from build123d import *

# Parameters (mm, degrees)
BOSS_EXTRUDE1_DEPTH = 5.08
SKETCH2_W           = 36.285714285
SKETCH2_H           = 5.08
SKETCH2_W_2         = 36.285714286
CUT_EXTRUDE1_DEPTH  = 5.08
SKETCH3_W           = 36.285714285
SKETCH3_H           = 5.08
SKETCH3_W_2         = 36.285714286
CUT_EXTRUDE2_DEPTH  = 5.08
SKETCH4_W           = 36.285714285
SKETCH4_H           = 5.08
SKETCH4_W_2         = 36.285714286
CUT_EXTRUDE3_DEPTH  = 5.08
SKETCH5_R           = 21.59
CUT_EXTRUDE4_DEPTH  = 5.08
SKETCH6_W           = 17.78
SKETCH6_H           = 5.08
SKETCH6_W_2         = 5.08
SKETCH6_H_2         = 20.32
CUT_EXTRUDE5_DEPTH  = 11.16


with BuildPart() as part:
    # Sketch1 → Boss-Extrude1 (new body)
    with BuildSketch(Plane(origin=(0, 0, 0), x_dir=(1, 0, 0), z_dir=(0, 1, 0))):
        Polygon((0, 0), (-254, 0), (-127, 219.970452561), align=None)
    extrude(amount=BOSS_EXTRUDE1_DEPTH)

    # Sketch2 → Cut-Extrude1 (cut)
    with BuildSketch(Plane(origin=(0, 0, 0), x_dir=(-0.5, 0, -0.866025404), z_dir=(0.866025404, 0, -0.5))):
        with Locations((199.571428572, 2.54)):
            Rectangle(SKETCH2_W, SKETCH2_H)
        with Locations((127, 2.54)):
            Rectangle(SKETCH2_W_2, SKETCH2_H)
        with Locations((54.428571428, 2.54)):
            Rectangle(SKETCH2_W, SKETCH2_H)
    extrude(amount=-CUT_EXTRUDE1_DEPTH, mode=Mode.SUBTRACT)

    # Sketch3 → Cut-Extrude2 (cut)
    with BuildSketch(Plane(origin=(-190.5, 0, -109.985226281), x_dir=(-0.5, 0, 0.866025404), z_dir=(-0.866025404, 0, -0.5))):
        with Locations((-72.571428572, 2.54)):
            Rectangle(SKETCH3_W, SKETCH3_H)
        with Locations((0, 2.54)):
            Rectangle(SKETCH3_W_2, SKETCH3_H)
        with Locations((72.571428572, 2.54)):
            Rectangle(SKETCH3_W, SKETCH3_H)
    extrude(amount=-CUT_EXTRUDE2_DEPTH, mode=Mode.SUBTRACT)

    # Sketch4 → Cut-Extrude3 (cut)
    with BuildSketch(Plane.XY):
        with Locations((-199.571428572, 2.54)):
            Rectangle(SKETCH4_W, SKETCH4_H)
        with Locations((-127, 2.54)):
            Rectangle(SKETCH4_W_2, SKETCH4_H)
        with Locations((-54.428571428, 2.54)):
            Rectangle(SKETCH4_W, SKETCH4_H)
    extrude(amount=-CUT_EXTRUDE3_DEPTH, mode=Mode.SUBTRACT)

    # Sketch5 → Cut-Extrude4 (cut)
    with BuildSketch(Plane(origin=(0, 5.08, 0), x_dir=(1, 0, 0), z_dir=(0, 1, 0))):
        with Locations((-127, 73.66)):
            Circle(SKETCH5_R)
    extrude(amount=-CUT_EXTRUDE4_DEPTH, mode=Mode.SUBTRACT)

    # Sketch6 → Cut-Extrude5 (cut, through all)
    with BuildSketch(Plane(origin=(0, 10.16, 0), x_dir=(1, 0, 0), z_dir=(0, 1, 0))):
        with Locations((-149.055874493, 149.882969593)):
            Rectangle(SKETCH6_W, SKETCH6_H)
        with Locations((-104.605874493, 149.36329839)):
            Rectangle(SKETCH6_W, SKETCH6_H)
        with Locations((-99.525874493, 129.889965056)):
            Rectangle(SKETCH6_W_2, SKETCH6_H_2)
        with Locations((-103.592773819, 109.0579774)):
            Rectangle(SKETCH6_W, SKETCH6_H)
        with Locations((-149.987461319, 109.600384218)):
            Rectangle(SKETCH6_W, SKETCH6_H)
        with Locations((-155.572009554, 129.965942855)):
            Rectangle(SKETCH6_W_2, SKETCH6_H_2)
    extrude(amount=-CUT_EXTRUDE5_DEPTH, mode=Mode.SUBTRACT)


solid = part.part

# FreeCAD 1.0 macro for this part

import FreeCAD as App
import Part
import Sketcher

V = App.Vector
Q = App.Units.Quantity


def add_polygon(sketch, points):
    """Adds a closed chain of lines whose ends are joined by coincident constraints."""
    first, n = sketch.GeometryCount, len(points)
    for a, b in zip(points, points[1:] + points[:1]):
        sketch.addGeometry(Part.LineSegment(App.Vector(*a, 0), App.Vector(*b, 0)), False)
    for i in range(n):
        sketch.addConstraint(Sketcher.Constraint("Coincident", first + i, 2, first + (i + 1) % n, 1))

doc = App.newDocument("Part")
body = doc.addObject("PartDesign::Body", "Body")

sketch1 = body.newObject("Sketcher::SketchObject", "Sketch")
sketch1.AttachmentSupport = (doc.getObject("XZ_Plane"), [""])
sketch1.MapMode = "FlatFace"
add_polygon(sketch1, [(-254, 0), (0, 0), (-127, -220)])
sketch1.addConstraint([
    Sketcher.Constraint("Horizontal", 0),
    Sketcher.Constraint("Coincident", 0, 2, -1, 1),
    Sketcher.Constraint("Equal", 1, 2),
    Sketcher.Constraint("DistanceX", 0, 1, 0, 2, Q("10 in")),
    Sketcher.Constraint("Distance", 1, Q("10 in")),
])
pad1 = body.newObject("PartDesign::Pad", "Pad")
pad1.Profile = sketch1
pad1.Length = Q("0.2 in")
pad1.Reversed = True

sketch2 = body.newObject("Sketcher::SketchObject", "Sketch001")
sketch2.Placement = App.Placement(V(0, 0, 0), App.Rotation(V(-0.5, 0, -0.866025404), V(0, 1, 0), V(0.866025404, 0, -0.5), "ZXY"))
add_polygon(sketch2, [(181, 5), (181, 0), (218, 0), (218, 5)])
add_polygon(sketch2, [(109, 5), (109, 0), (145, 0), (145, 5)])
add_polygon(sketch2, [(36, 5), (36, 0), (73, 0), (73, 5)])
sketch2.addConstraint([
    Sketcher.Constraint("Vertical", 0),
    Sketcher.Constraint("Horizontal", 1),
    Sketcher.Constraint("Vertical", 2),
    Sketcher.Constraint("Horizontal", 3),
    Sketcher.Constraint("Vertical", 4),
    Sketcher.Constraint("Horizontal", 5),
    Sketcher.Constraint("Vertical", 6),
    Sketcher.Constraint("Horizontal", 7),
    Sketcher.Constraint("Vertical", 8),
    Sketcher.Constraint("Horizontal", 9),
    Sketcher.Constraint("Vertical", 10),
    Sketcher.Constraint("Horizontal", 11),
    Sketcher.Constraint("PointOnObject", 0, 2, -1),
    Sketcher.Constraint("PointOnObject", 4, 2, -1),
    Sketcher.Constraint("PointOnObject", 8, 2, -1),
    Sketcher.Constraint("Horizontal", 3, 2, 6, 2),
    Sketcher.Constraint("Horizontal", 7, 2, 10, 2),
    Sketcher.Constraint("Equal", 3, 5),
    Sketcher.Constraint("Equal", 7, 9),
    Sketcher.Constraint("DistanceY", 0, 2, 0, 1, Q("0.2 in")),
    Sketcher.Constraint("DistanceX", 1, 1, 1, 2, 36.285714),
    Sketcher.Constraint("DistanceX", -1, 1, 0, 2, 181.428571),
    Sketcher.Constraint("DistanceX", -1, 1, 9, 2, 72.571429),
    Sketcher.Constraint("DistanceX", 4, 2, 0, 2, 72.571429),
])
pocket1 = body.newObject("PartDesign::Pocket", "Pocket")
pocket1.Profile = sketch2
pocket1.Length = Q("0.2 in")

sketch3 = body.newObject("Sketcher::SketchObject", "Sketch002")
sketch3.Placement = App.Placement(V(-190.5, 0, -109.985226), App.Rotation(V(-0.5, 0, 0.866025404), V(0, 1, 0), V(-0.866025404, 0, -0.5), "ZXY"))
add_polygon(sketch3, [(-91, 5), (-91, 0), (-54, 0), (-54, 5)])
add_polygon(sketch3, [(-18, 5), (-18, 0), (18, 0), (18, 5)])
add_polygon(sketch3, [(54, 5), (54, 0), (91, 0), (91, 5)])
sketch3.addConstraint([
    Sketcher.Constraint("Vertical", 0),
    Sketcher.Constraint("Horizontal", 1),
    Sketcher.Constraint("Vertical", 2),
    Sketcher.Constraint("Horizontal", 3),
    Sketcher.Constraint("Vertical", 4),
    Sketcher.Constraint("Horizontal", 5),
    Sketcher.Constraint("Vertical", 6),
    Sketcher.Constraint("Horizontal", 7),
    Sketcher.Constraint("Vertical", 8),
    Sketcher.Constraint("Horizontal", 9),
    Sketcher.Constraint("Vertical", 10),
    Sketcher.Constraint("Horizontal", 11),
    Sketcher.Constraint("Symmetric", 4, 2, 5, 2, -1, 1),
    Sketcher.Constraint("Symmetric", 1, 2, 8, 2, -1, 1),
    Sketcher.Constraint("Symmetric", 0, 2, 9, 2, -2),
    Sketcher.Constraint("Horizontal", 3, 2, 6, 2),
    Sketcher.Constraint("Horizontal", 7, 2, 10, 2),
    Sketcher.Constraint("Equal", 3, 5),
    Sketcher.Constraint("DistanceY", 0, 2, 0, 1, Q("0.2 in")),
    Sketcher.Constraint("DistanceX", 1, 1, 1, 2, 36.285714),
    Sketcher.Constraint("DistanceX", 1, 2, -1, 1, 54.428571),
])
pocket2 = body.newObject("PartDesign::Pocket", "Pocket001")
pocket2.Profile = sketch3
pocket2.Length = Q("0.2 in")

sketch4 = body.newObject("Sketcher::SketchObject", "Sketch003")
sketch4.AttachmentSupport = (doc.getObject("XY_Plane"), [""])
sketch4.MapMode = "FlatFace"
add_polygon(sketch4, [(-218, 5), (-218, 0), (-181, 0), (-181, 5)])
add_polygon(sketch4, [(-145, 5), (-145, 0), (-109, 0), (-109, 5)])
add_polygon(sketch4, [(-73, 5), (-73, 0), (-36, 0), (-36, 5)])
sketch4.addConstraint([
    Sketcher.Constraint("Vertical", 0),
    Sketcher.Constraint("Horizontal", 1),
    Sketcher.Constraint("Vertical", 2),
    Sketcher.Constraint("Horizontal", 3),
    Sketcher.Constraint("Vertical", 4),
    Sketcher.Constraint("Horizontal", 5),
    Sketcher.Constraint("Vertical", 6),
    Sketcher.Constraint("Horizontal", 7),
    Sketcher.Constraint("Vertical", 8),
    Sketcher.Constraint("Horizontal", 9),
    Sketcher.Constraint("Vertical", 10),
    Sketcher.Constraint("Horizontal", 11),
    Sketcher.Constraint("PointOnObject", 0, 2, -1),
    Sketcher.Constraint("PointOnObject", 4, 2, -1),
    Sketcher.Constraint("PointOnObject", 8, 2, -1),
    Sketcher.Constraint("Horizontal", 3, 2, 6, 2),
    Sketcher.Constraint("Horizontal", 7, 2, 10, 2),
    Sketcher.Constraint("Equal", 3, 5),
    Sketcher.Constraint("Equal", 7, 9),
    Sketcher.Constraint("DistanceY", 0, 2, 0, 1, Q("0.2 in")),
    Sketcher.Constraint("DistanceX", 1, 1, 1, 2, 36.285714),
    Sketcher.Constraint("DistanceX", 1, 2, -1, 1, 181.428571),
    Sketcher.Constraint("DistanceX", 8, 2, -1, 1, 72.571429),
    Sketcher.Constraint("DistanceX", 0, 2, 4, 2, 72.571429),
])
pocket3 = body.newObject("PartDesign::Pocket", "Pocket002")
pocket3.Profile = sketch4
pocket3.Length = Q("0.2 in")

sketch5 = body.newObject("Sketcher::SketchObject", "Sketch004")
sketch5.AttachmentSupport = (doc.getObject("XZ_Plane"), [""])
sketch5.MapMode = "FlatFace"
sketch5.AttachmentOffset = App.Placement(V(0, 0, -0.2 * 25.4), App.Rotation())
sketch5.addGeometry(Part.Circle(V(-127, -74, 0), V(0, 0, 1), 22), False)
sketch5.addConstraint([
    Sketcher.Constraint("Diameter", 0, Q("1.7 in")),
    Sketcher.Constraint("DistanceX", 0, 3, -1, 1, Q("5 in")),
    Sketcher.Constraint("DistanceY", 0, 3, -1, 1, Q("2.9 in")),
])
pocket4 = body.newObject("PartDesign::Pocket", "Pocket003")
pocket4.Profile = sketch5
pocket4.Length = Q("0.2 in")
pocket4.Reversed = True

sketch6 = body.newObject("Sketcher::SketchObject", "Sketch005")
sketch6.AttachmentSupport = (doc.getObject("XZ_Plane"), [""])
sketch6.MapMode = "FlatFace"
sketch6.AttachmentOffset = App.Placement(V(0, 0, -0.4 * 25.4), App.Rotation())
add_polygon(sketch6, [(-158, -152), (-158, -147), (-140, -147), (-140, -152)])
add_polygon(sketch6, [(-113, -152), (-113, -147), (-96, -147), (-96, -152)])
add_polygon(sketch6, [(-102, -140), (-102, -120), (-97, -120), (-97, -140)])
add_polygon(sketch6, [(-112, -112), (-112, -107), (-95, -107), (-95, -112)])
add_polygon(sketch6, [(-159, -112), (-159, -107), (-141, -107), (-141, -112)])
add_polygon(sketch6, [(-158, -140), (-158, -120), (-153, -120), (-153, -140)])
sketch6.addConstraint([
    Sketcher.Constraint("Vertical", 0),
    Sketcher.Constraint("Horizontal", 1),
    Sketcher.Constraint("Vertical", 2),
    Sketcher.Constraint("Horizontal", 3),
    Sketcher.Constraint("Vertical", 4),
    Sketcher.Constraint("Horizontal", 5),
    Sketcher.Constraint("Vertical", 6),
    Sketcher.Constraint("Horizontal", 7),
    Sketcher.Constraint("Vertical", 8),
    Sketcher.Constraint("Horizontal", 9),
    Sketcher.Constraint("Vertical", 10),
    Sketcher.Constraint("Horizontal", 11),
    Sketcher.Constraint("Vertical", 12),
    Sketcher.Constraint("Horizontal", 13),
    Sketcher.Constraint("Vertical", 14),
    Sketcher.Constraint("Horizontal", 15),
    Sketcher.Constraint("Vertical", 16),
    Sketcher.Constraint("Horizontal", 17),
    Sketcher.Constraint("Vertical", 18),
    Sketcher.Constraint("Horizontal", 19),
    Sketcher.Constraint("Vertical", 20),
    Sketcher.Constraint("Horizontal", 21),
    Sketcher.Constraint("Vertical", 22),
    Sketcher.Constraint("Horizontal", 23),
    Sketcher.Constraint("Equal", 3, 5),
    Sketcher.Constraint("Equal", 7, 13),
    Sketcher.Constraint("Equal", 15, 17),
    Sketcher.Constraint("Equal", 11, 21),
    Sketcher.Constraint("Equal", 23, 0),
    Sketcher.Constraint("Equal", 2, 4),
    Sketcher.Constraint("Equal", 6, 12),
    Sketcher.Constraint("Equal", 14, 16),
    Sketcher.Constraint("Equal", 10, 20),
    Sketcher.Constraint("DistanceX", 1, 1, 1, 2, Q("0.7 in")),
    Sketcher.Constraint("DistanceX", 9, 1, 9, 2, Q("0.2 in")),
    Sketcher.Constraint("DistanceY", 8, 1, 8, 2, Q("0.8 in")),
    Sketcher.Constraint("DistanceX", 1, 2, 8, 2, Q("1.5 in")),
    Sketcher.Constraint("DistanceX", 1, 2, 4, 2, Q("1.05 in")),
    Sketcher.Constraint("DistanceY", 4, 2, -1, 1, 146.823298),
    Sketcher.Constraint("DistanceX", 12, 2, 8, 2, 10.416899),
    Sketcher.Constraint("DistanceY", 0, 2, -1, 1, 147.34297),
    Sketcher.Constraint("DistanceX", 16, 2, -1, 1, 158.877461),
    Sketcher.Constraint("DistanceX", 20, 2, -1, 1, 158.11201),
    Sketcher.Constraint("DistanceY", 4, 2, 12, 2, 40.305321),
    Sketcher.Constraint("DistanceY", 8, 2, 17, 2, 12.669581),
    Sketcher.Constraint("DistanceY", 20, 2, 19, 2, 7.665559),
    Sketcher.Constraint("DistanceX", 0, 2, -1, 1, 157.945874),
    Sketcher.Constraint("DistanceY", 8, 2, -1, 1, 119.729965),
])
pocket5 = body.newObject("PartDesign::Pocket", "Pocket004")
pocket5.Profile = sketch6
pocket5.Type = "ThroughAll"
pocket5.Reversed = True

doc.recompute()
